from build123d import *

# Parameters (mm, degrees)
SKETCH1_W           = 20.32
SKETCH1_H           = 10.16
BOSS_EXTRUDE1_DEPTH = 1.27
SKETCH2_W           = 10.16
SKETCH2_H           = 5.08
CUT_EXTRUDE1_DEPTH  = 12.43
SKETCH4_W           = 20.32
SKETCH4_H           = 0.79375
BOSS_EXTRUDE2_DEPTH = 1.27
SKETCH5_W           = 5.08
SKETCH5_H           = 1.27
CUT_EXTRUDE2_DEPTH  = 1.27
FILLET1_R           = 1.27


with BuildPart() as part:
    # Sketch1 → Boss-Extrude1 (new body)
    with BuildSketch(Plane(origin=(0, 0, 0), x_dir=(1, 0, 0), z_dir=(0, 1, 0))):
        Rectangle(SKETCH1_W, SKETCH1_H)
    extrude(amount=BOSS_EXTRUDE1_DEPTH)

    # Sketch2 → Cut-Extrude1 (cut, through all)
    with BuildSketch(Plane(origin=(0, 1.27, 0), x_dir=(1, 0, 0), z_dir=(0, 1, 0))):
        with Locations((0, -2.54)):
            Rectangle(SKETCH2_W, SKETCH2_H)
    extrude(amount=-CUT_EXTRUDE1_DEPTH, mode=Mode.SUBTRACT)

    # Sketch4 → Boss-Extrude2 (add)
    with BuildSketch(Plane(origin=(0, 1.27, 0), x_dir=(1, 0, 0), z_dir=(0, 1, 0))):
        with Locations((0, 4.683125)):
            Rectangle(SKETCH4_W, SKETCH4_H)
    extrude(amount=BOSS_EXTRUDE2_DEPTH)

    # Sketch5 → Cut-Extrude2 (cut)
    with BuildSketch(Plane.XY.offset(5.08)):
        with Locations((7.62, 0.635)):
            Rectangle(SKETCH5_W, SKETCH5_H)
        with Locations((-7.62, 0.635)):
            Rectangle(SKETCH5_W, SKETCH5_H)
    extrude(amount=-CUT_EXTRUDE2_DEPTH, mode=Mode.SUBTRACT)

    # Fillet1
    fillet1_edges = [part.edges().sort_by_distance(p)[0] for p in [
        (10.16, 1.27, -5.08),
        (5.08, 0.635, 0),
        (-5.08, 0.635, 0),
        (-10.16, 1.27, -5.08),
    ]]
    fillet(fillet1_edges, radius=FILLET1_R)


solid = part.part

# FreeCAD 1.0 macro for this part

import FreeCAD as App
import Part
import Sketcher

V = App.Vector
Q = App.Units.Quantity


def edges_at(feature, points):
    """Names of the edges that pass closest to the given points."""
    edges = feature.Shape.Edges
    near = lambda p: min(range(len(edges)), key=lambda i: edges[i].distToShape(Part.Vertex(*p))[0])
    return sorted({f"Edge{near(p) + 1}" for p in points})

doc = App.newDocument("Part")
params = doc.addObject("Spreadsheet::Sheet", "Params")
for row, (alias, value) in enumerate([
    ("sketch1_width", "0.8 in"),
    ("sketch1_height", "0.4 in"),
    ("pad1_length", "0.05 in"),
    ("sketch2_width", "0.4 in"),
    ("sketch2_height", "0.2 in"),
    ("sketch3_width", "0.8 in"),
    ("sketch3_height", "0.03125 in"),
    ("pad2_length", "0.05 in"),
    ("sketch4_width", "0.2 in"),
    ("sketch4_height", "0.05 in"),
    ("pocket2_length", "0.05 in"),
    ("fillet_radius", "0.05 in"),
], start=1):
    params.set(f"A{row}", alias)
    params.set(f"B{row}", "=" + value)
    params.setAlias(f"B{row}", alias)

body = doc.addObject("PartDesign::Body", "Body")

# Sketch on XZ plane
sketch1 = doc.addObject("Sketcher::SketchObject", "Sketch")
body.addObject(sketch1)
sketch1.AttachmentSupport = (doc.XZ_Plane, [""])
sketch1.MapMode = "FlatFace"
sketch1.addGeometry([
    Part.LineSegment(V(-10.16, -5.08, 0), V(-10.16, 5.08, 0)),
    Part.LineSegment(V(-10.16, 5.08, 0), V(10.16, 5.08, 0)),
    Part.LineSegment(V(10.16, 5.08, 0), V(10.16, -5.08, 0)),
    Part.LineSegment(V(10.16, -5.08, 0), V(-10.16, -5.08, 0)),
], False)
sketch1.addConstraint([
    Sketcher.Constraint("Coincident", 0, 2, 1, 1),
    Sketcher.Constraint("Coincident", 1, 2, 2, 1),
    Sketcher.Constraint("Coincident", 2, 2, 3, 1),
    Sketcher.Constraint("Coincident", 3, 2, 0, 1),
    Sketcher.Constraint("Vertical", 0),
    Sketcher.Constraint("Horizontal", 1),
    Sketcher.Constraint("Vertical", 2),
    Sketcher.Constraint("Horizontal", 3),
    Sketcher.Constraint("Symmetric", 0, 2, 2, 2, -1, 1),
    Sketcher.Constraint("DistanceX", 1, 1, 1, 2, Q("0.8 in")),
    Sketcher.Constraint("DistanceY", 0, 1, 0, 2, Q("0.4 in")),
])
sketch1.setExpression("Constraints[9]", "Params.sketch1_width")
sketch1.setExpression("Constraints[10]", "Params.sketch1_height")
pad1 = doc.addObject("PartDesign::Pad", "Pad")
body.addObject(pad1)
pad1.Profile = sketch1
pad1.setExpression("Length", "Params.pad1_length")
pad1.Reversed = True

# Sketch on XZ plane
sketch2 = doc.addObject("Sketcher::SketchObject", "Sketch001")
body.addObject(sketch2)
sketch2.AttachmentSupport = (doc.XZ_Plane, [""])
sketch2.MapMode = "FlatFace"
sketch2.AttachmentOffset = App.Placement(V(0, 0, -0.05 * 25.4), App.Rotation())
sketch2.addGeometry([
    Part.LineSegment(V(-5.08, 0, 0), V(-5.08, 5.08, 0)),
    Part.LineSegment(V(-5.08, 5.08, 0), V(5.08, 5.08, 0)),
    Part.LineSegment(V(5.08, 5.08, 0), V(5.08, 0, 0)),
    Part.LineSegment(V(5.08, 0, 0), V(-5.08, 0, 0)),
], False)
sketch2.addConstraint([
    Sketcher.Constraint("Coincident", 0, 2, 1, 1),
    Sketcher.Constraint("Coincident", 1, 2, 2, 1),
    Sketcher.Constraint("Coincident", 2, 2, 3, 1),
    Sketcher.Constraint("Coincident", 3, 2, 0, 1),
    Sketcher.Constraint("Vertical", 0),
    Sketcher.Constraint("Horizontal", 1),
    Sketcher.Constraint("Vertical", 2),
    Sketcher.Constraint("Horizontal", 3),
    Sketcher.Constraint("Symmetric", 2, 2, 3, 2, -1, 1),
    Sketcher.Constraint("DistanceX", 1, 1, 1, 2, Q("0.4 in")),
    Sketcher.Constraint("DistanceY", 0, 1, 0, 2, Q("0.2 in")),
])
sketch2.setExpression("Constraints[9]", "Params.sketch2_width")
sketch2.setExpression("Constraints[10]", "Params.sketch2_height")
pocket1 = doc.addObject("PartDesign::Pocket", "Pocket")
body.addObject(pocket1)
pocket1.Profile = sketch2
pocket1.Type = "ThroughAll"
pocket1.Reversed = True

# Sketch on XZ plane
sketch3 = doc.addObject("Sketcher::SketchObject", "Sketch002")
body.addObject(sketch3)
sketch3.AttachmentSupport = (doc.XZ_Plane, [""])
sketch3.MapMode = "FlatFace"
sketch3.AttachmentOffset = App.Placement(V(0, 0, -0.05 * 25.4), App.Rotation())
sketch3.addGeometry([
    Part.LineSegment(V(-10.16, -5.08, 0), V(-10.16, -4.28625, 0)),
    Part.LineSegment(V(-10.16, -4.28625, 0), V(10.16, -4.28625, 0)),
    Part.LineSegment(V(10.16, -4.28625, 0), V(10.16, -5.08, 0)),
    Part.LineSegment(V(10.16, -5.08, 0), V(-10.16, -5.08, 0)),
], False)
sketch3.addConstraint([
    Sketcher.Constraint("Coincident", 0, 2, 1, 1),
    Sketcher.Constraint("Coincident", 1, 2, 2, 1),
    Sketcher.Constraint("Coincident", 2, 2, 3, 1),
    Sketcher.Constraint("Coincident", 3, 2, 0, 1),
    Sketcher.Constraint("Vertical", 0),
    Sketcher.Constraint("Horizontal", 1),
    Sketcher.Constraint("Vertical", 2),
    Sketcher.Constraint("Horizontal", 3),
    Sketcher.Constraint("DistanceX", 1, 1, 1, 2, Q("0.8 in")),
    Sketcher.Constraint("DistanceX", 0, 2, -1, 1, Q("0.4 in")),
    Sketcher.Constraint("DistanceY", 2, 2, -1, 1, Q("0.2 in")),
    Sketcher.Constraint("DistanceY", 0, 1, 0, 2, Q("0.03125 in")),
])
sketch3.setExpression("Constraints[8]", "Params.sketch3_width")
sketch3.setExpression("Constraints[11]", "Params.sketch3_height")
pad2 = doc.addObject("PartDesign::Pad", "Pad001")
body.addObject(pad2)
pad2.Profile = sketch3
pad2.setExpression("Length", "Params.pad2_length")
pad2.Reversed = True

# Sketch on XY plane
sketch4 = doc.addObject("Sketcher::SketchObject", "Sketch003")
body.addObject(sketch4)
sketch4.AttachmentSupport = (doc.XY_Plane, [""])
sketch4.MapMode = "FlatFace"
sketch4.AttachmentOffset = App.Placement(V(0, 0, 0.2 * 25.4), App.Rotation())
sketch4.addGeometry([
    Part.LineSegment(V(5.08, 1.27, 0), V(5.08, 0, 0)),  # 0
    Part.LineSegment(V(5.08, 0, 0), V(10.16, 0, 0)),  # 1
    Part.LineSegment(V(10.16, 0, 0), V(10.16, 1.27, 0)),  # 2
    Part.LineSegment(V(10.16, 1.27, 0), V(5.08, 1.27, 0)),  # 3
    Part.LineSegment(V(-10.16, 1.27, 0), V(-10.16, 0, 0)),  # 4
    Part.LineSegment(V(-10.16, 0, 0), V(-5.08, 0, 0)),  # 5
    Part.LineSegment(V(-5.08, 0, 0), V(-5.08, 1.27, 0)),  # 6
    Part.LineSegment(V(-5.08, 1.27, 0), V(-10.16, 1.27, 0)),  # 7
], False)
sketch4.addConstraint([
    Sketcher.Constraint("Coincident", 0, 2, 1, 1),
    Sketcher.Constraint("Coincident", 1, 2, 2, 1),
    Sketcher.Constraint("Coincident", 2, 2, 3, 1),
    Sketcher.Constraint("Coincident", 3, 2, 0, 1),
    Sketcher.Constraint("Coincident", 4, 2, 5, 1),
    Sketcher.Constraint("Coincident", 5, 2, 6, 1),
    Sketcher.Constraint("Coincident", 6, 2, 7, 1),
    Sketcher.Constraint("Coincident", 7, 2, 4, 1),
    Sketcher.Constraint("Vertical", 0),
    Sketcher.Constraint("Horizontal", 1),
    Sketcher.Constraint("Vertical", 2),
    Sketcher.Constraint("Horizontal", 3),
    Sketcher.Constraint("Vertical", 4),
    Sketcher.Constraint("Horizontal", 5),
    Sketcher.Constraint("Vertical", 6),
    Sketcher.Constraint("Horizontal", 7),
    Sketcher.Constraint("Symmetric", 1, 2, 4, 2, -1, 1),
    Sketcher.Constraint("Symmetric", 0, 2, 5, 2, -2),
    Sketcher.Constraint("Horizontal", 3, 2, 6, 2),
    Sketcher.Constraint("DistanceX", 1, 1, 1, 2, Q("0.2 in")),
    Sketcher.Constraint("DistanceY", 0, 2, 0, 1, Q("0.05 in")),
    Sketcher.Constraint("DistanceX", -1, 1, 0, 2, Q("0.2 in")),
])
sketch4.setExpression("Constraints[19]", "Params.sketch4_width")
sketch4.setExpression("Constraints[20]", "Params.sketch4_height")
pocket2 = doc.addObject("PartDesign::Pocket", "Pocket001")
body.addObject(pocket2)
pocket2.Profile = sketch4
pocket2.setExpression("Length", "Params.pocket2_length")
doc.recompute()

fillet = doc.addObject("PartDesign::Fillet", "Fillet")
body.addObject(fillet)
fillet.Base = (pocket2, edges_at(pocket2, [
    (10.16, 1.27, -5.08),
    (5.08, 0.635, 0),
    (-5.08, 0.635, 0),
    (-10.16, 1.27, -5.08),
]))
fillet.setExpression("Radius", "Params.fillet_radius")

doc.recompute()
